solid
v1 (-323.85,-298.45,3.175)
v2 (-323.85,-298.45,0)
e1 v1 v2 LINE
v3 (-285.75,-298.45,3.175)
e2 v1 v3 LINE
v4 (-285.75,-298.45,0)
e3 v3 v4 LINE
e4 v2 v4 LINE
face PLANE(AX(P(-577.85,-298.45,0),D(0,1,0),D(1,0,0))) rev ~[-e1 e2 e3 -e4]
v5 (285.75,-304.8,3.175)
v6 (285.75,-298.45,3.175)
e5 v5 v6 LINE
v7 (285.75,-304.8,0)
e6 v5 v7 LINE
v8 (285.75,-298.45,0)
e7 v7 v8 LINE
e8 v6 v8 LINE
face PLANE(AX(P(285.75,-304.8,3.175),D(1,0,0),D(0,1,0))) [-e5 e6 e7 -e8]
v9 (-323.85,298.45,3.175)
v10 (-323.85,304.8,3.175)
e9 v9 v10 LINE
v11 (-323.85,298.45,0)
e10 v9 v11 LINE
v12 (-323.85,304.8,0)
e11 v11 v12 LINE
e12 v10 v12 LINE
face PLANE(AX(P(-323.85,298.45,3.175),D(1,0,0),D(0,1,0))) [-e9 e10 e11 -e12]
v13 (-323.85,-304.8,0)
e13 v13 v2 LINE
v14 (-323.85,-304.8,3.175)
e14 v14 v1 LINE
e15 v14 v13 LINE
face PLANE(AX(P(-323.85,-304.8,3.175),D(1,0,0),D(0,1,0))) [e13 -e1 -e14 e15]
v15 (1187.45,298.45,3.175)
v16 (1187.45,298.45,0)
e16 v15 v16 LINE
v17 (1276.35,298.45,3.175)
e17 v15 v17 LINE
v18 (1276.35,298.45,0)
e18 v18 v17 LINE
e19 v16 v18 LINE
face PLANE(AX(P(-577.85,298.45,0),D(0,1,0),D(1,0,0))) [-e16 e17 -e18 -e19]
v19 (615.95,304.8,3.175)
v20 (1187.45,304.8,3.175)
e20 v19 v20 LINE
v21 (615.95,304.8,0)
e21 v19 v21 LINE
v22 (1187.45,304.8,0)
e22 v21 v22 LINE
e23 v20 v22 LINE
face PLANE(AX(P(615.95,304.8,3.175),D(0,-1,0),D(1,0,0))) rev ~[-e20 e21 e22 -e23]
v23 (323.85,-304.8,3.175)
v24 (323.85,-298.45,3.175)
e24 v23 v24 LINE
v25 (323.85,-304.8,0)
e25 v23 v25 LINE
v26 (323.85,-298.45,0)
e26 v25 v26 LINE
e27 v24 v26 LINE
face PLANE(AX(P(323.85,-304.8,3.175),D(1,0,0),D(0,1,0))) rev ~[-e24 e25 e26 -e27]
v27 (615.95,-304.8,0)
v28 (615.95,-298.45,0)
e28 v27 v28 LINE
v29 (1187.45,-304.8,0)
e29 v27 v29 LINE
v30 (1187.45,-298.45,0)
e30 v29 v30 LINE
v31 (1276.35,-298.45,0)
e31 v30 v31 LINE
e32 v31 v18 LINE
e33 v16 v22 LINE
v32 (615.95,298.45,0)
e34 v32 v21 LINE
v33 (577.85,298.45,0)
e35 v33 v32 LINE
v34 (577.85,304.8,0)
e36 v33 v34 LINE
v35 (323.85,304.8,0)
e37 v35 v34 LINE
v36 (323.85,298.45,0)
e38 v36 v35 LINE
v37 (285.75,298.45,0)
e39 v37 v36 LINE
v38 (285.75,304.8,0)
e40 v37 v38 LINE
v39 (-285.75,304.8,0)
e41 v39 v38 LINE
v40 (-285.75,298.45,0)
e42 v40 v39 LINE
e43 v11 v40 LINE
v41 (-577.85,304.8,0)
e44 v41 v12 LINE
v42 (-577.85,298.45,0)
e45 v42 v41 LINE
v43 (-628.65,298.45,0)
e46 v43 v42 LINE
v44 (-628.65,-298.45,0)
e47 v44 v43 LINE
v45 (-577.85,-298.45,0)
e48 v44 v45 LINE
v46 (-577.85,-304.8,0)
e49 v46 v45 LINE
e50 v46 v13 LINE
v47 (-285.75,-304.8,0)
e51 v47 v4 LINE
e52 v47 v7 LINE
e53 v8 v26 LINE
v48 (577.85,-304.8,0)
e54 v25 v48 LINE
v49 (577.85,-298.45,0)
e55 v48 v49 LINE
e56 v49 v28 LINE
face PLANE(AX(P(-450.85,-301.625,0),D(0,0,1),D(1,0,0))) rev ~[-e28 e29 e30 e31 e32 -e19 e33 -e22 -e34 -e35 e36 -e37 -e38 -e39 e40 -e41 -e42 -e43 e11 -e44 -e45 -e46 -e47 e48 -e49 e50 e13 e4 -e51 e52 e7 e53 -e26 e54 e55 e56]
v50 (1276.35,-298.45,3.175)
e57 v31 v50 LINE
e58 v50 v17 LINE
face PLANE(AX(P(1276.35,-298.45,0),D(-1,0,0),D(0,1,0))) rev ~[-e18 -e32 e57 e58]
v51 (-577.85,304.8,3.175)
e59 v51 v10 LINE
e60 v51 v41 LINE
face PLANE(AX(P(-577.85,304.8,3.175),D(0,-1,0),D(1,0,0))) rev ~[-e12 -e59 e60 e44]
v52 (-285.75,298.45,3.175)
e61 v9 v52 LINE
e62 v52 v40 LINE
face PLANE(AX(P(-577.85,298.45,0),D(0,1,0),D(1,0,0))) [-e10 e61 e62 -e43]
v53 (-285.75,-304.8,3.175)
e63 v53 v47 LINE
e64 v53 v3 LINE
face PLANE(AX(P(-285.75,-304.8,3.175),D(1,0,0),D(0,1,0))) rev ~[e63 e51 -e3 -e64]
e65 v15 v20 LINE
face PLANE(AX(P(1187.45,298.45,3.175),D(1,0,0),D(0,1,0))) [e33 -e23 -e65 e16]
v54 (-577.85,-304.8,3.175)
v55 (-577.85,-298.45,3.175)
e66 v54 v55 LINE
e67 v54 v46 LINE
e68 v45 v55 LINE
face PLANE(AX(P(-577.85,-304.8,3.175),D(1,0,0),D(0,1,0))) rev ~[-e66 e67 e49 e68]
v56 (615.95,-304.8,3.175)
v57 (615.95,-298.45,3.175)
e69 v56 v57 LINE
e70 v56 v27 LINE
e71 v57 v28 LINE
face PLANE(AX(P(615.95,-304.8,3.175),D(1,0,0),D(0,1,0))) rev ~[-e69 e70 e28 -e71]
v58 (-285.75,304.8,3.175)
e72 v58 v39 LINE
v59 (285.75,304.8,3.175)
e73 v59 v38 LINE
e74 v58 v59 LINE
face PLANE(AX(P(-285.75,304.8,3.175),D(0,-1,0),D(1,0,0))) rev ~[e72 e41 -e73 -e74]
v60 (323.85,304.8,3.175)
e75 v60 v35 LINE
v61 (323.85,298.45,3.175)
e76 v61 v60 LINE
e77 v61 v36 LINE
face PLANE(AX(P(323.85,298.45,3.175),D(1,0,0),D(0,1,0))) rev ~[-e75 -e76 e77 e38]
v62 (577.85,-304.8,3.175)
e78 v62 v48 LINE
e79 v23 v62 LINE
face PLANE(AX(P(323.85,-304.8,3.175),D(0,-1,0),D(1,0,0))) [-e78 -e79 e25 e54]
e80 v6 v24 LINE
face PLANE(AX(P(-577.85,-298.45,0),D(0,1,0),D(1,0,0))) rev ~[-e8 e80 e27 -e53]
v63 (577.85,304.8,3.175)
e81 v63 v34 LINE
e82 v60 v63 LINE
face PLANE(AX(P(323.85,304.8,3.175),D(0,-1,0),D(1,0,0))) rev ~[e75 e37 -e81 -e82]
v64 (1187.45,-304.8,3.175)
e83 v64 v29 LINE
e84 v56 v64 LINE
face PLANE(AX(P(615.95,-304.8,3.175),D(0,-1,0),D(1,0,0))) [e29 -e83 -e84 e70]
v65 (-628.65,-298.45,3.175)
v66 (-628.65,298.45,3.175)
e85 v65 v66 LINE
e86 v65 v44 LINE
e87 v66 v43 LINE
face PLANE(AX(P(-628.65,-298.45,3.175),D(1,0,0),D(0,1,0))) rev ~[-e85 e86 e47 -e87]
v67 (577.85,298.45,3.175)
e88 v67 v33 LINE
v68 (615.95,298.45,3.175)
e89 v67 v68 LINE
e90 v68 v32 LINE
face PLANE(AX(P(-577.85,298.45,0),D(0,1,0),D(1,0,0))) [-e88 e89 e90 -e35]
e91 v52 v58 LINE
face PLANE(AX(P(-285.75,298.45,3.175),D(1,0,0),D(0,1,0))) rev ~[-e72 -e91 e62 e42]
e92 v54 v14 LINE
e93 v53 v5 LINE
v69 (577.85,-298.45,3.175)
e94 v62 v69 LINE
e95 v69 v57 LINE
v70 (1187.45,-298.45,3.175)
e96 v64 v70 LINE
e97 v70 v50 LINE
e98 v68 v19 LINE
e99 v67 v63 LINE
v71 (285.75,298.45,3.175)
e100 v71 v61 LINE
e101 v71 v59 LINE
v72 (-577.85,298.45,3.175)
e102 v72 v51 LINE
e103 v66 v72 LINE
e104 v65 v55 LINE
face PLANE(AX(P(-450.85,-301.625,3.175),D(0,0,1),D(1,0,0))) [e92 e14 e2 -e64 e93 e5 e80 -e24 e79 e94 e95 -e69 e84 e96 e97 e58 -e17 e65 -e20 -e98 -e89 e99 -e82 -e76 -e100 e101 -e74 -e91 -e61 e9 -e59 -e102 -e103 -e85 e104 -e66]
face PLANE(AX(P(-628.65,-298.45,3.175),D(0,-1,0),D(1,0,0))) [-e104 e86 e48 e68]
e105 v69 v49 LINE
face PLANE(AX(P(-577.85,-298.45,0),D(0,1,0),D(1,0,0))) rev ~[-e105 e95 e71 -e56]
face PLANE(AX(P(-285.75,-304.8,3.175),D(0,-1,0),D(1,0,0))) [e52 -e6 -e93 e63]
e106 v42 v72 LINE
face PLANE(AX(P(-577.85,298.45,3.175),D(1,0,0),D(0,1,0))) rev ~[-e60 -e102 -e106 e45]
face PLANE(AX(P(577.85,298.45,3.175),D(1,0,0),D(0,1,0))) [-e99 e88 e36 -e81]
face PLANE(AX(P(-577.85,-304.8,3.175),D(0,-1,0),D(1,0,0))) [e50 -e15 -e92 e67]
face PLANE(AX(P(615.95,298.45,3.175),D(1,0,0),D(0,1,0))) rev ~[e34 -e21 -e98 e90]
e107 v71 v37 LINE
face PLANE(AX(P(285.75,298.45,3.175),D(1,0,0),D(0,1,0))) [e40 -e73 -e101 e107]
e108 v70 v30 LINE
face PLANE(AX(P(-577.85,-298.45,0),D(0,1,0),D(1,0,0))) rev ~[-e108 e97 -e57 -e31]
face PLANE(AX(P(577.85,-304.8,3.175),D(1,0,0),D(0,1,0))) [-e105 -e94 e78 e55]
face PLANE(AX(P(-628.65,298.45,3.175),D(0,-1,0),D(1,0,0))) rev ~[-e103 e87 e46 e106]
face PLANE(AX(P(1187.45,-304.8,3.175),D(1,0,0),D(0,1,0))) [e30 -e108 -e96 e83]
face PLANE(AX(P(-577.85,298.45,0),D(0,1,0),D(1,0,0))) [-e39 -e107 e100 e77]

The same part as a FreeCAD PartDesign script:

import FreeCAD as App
import Part
import Sketcher
from FreeCAD import Vector
Q = App.Units.Quantity


def add_polygon(sketch, points):
    """Adds a closed chain of lines whose ends are joined by coincident constraints."""
    first, n = sketch.GeometryCount, len(points)
    for a, b in zip(points, points[1:] + points[:1]):
        sketch.addGeometry(Part.LineSegment(App.Vector(*a, 0), App.Vector(*b, 0)), False)
    for i in range(n):
        sketch.addConstraint(Sketcher.Constraint("Coincident", first + i, 2, first + (i + 1) % n, 1))

doc = App.newDocument("Part")
params = doc.addObject("Spreadsheet::Sheet", "Params")
for row, (alias, value) in enumerate([
    ("sketch1_width", "73 in"),
    ("sketch1_height", "23.5 in"),
    ("pad1_length", "0.125 in"),
    ("sketch2_width", "10 in"),
    ("sketch2_width2", "2 in"),
    ("sketch2_width3", "22.5 in"),
    ("sketch2_height", "23.5 in"),
    ("pad2_length", "0.125 in"),
], start=1):
    params.set(f"A{row}", alias)
    params.set(f"B{row}", "=" + value)
    params.setAlias(f"B{row}", alias)

body = doc.addObject("PartDesign::Body", "Body")

# Sketch on XY plane
sketch1 = body.newObject("Sketcher::SketchObject", "Sketch")
sketch1.AttachmentSupport = (doc.getObject("XY_Plane"), [""])
sketch1.MapMode = "FlatFace"
add_polygon(sketch1, [(-578, 298), (-578, -298), (1276, -298), (1276, 298)])  # lines 0-3
sketch1.addConstraint([
    Sketcher.Constraint("Vertical", 0),
    Sketcher.Constraint("Horizontal", 1),
    Sketcher.Constraint("Vertical", 2),
    Sketcher.Constraint("Horizontal", 3),
    Sketcher.Constraint("DistanceX", 1, 1, 1, 2, Q("73 in")),
    Sketcher.Constraint("DistanceY", 0, 2, 0, 1, Q("23.5 in")),
    Sketcher.Constraint("DistanceX", 0, 2, -1, 1, Q("22.75 in")),
    Sketcher.Constraint("DistanceY", 0, 2, -1, 1, Q("11.75 in")),
])
sketch1.setExpression("Constraints[8]", "Params.sketch1_width")
sketch1.setExpression("Constraints[9]", "Params.sketch1_height")
pad1 = body.newObject("PartDesign::Pad", "Pad")
pad1.Profile = sketch1
pad1.setExpression("Length", "Params.pad1_length")

# Sketch on XY plane
sketch2 = body.newObject("Sketcher::SketchObject", "Sketch001")
sketch2.AttachmentSupport = (doc.getObject("XY_Plane"), [""])
sketch2.MapMode = "FlatFace"
sketch2.AttachmentOffset = App.Placement(Vector(0, 0, 0.125 * 25.4), App.Rotation())
add_polygon(sketch2, [(616, 305), (616, 298), (1187, 298), (1187, 305)])  # lines 0-3
add_polygon(sketch2, [(324, 305), (324, 298), (578, 298), (578, 305)])  # lines 4-7
add_polygon(sketch2, [(-286, 305), (-286, 298), (286, 298), (286, 305)])  # lines 8-11
add_polygon(sketch2, [(-578, -298), (-578, -305), (-324, -305), (-324, -298)])  # lines 12-15
add_polygon(sketch2, [(-629, 298), (-629, -298), (-578, -298), (-578, 298)])  # lines 16-19
add_polygon(sketch2, [(-578, 305), (-578, 298), (-324, 298), (-324, 305)])  # lines 20-23
add_polygon(sketch2, [(-286, -298), (-286, -305), (286, -305), (286, -298)])  # lines 24-27
add_polygon(sketch2, [(324, -298), (324, -305), (578, -305), (578, -298)])  # lines 28-31
add_polygon(sketch2, [(616, -298), (616, -305), (1187, -305), (1187, -298)])  # lines 32-35
sketch2.addConstraint([
    Sketcher.Constraint("Vertical", 0),
    Sketcher.Constraint("Horizontal", 1),
    Sketcher.Constraint("Vertical", 2),
    Sketcher.Constraint("Horizontal", 3),
    Sketcher.Constraint("Vertical", 4),
    Sketcher.Constraint("Horizontal", 5),
    Sketcher.Constraint("Vertical", 6),
    Sketcher.Constraint("Horizontal", 7),
    Sketcher.Constraint("Vertical", 8),
    Sketcher.Constraint("Horizontal", 9),
    Sketcher.Constraint("Vertical", 10),
    Sketcher.Constraint("Horizontal", 11),
    Sketcher.Constraint("Vertical", 12),
    Sketcher.Constraint("Horizontal", 13),
    Sketcher.Constraint("Vertical", 14),
    Sketcher.Constraint("Horizontal", 15),
    Sketcher.Constraint("Vertical", 16),
    Sketcher.Constraint("Horizontal", 17),
    Sketcher.Constraint("Vertical", 18),
    Sketcher.Constraint("Horizontal", 19),
    Sketcher.Constraint("Vertical", 20),
    Sketcher.Constraint("Horizontal", 21),
    Sketcher.Constraint("Vertical", 22),
    Sketcher.Constraint("Horizontal", 23),
    Sketcher.Constraint("Vertical", 24),
    Sketcher.Constraint("Horizontal", 25),
    Sketcher.Constraint("Vertical", 26),
    Sketcher.Constraint("Horizontal", 27),
    Sketcher.Constraint("Vertical", 28),
    Sketcher.Constraint("Horizontal", 29),
    Sketcher.Constraint("Vertical", 30),
    Sketcher.Constraint("Horizontal", 31),
    Sketcher.Constraint("Vertical", 32),
    Sketcher.Constraint("Horizontal", 33),
    Sketcher.Constraint("Vertical", 34),
    Sketcher.Constraint("Horizontal", 35),
    Sketcher.Constraint("Coincident", 17, 2, 15, 2),
    Sketcher.Constraint("Coincident", 20, 2, 18, 2),
    Sketcher.Constraint("Symmetric", 6, 2, 12, 2, -1, 1),
    Sketcher.Constraint("Symmetric", 4, 2, 14, 2, -1, 1),
    Sketcher.Constraint("Symmetric", 10, 2, 24, 2, -1, 1),
    Sketcher.Constraint("Symmetric", 8, 2, 26, 2, -1, 1),
    Sketcher.Constraint("Symmetric", 22, 2, 28, 2, -1, 1),
    Sketcher.Constraint("Symmetric", 18, 2, 30, 2, -1, 1),
    Sketcher.Constraint("Symmetric", 4, 2, 21, 2, -2),
    Sketcher.Constraint("Symmetric", 3, 2, 32, 2, -1),
    Sketcher.Constraint("Symmetric", 1, 2, 34, 2, -1),
    Sketcher.Constraint("Horizontal", 1, 2, 4, 2),
    Sketcher.Constraint("Horizontal", 3, 2, 6, 2),
    Sketcher.Constraint("Horizontal", 5, 2, 8, 2),
    Sketcher.Constraint("Horizontal", 7, 2, 10, 2),
    Sketcher.Constraint("Horizontal", 11, 2, 22, 2),
    Sketcher.Constraint("Vertical", 11, 2, 24, 2),
    Sketcher.Constraint("Equal", 3, 9),
    Sketcher.Constraint("DistanceX", 5, 1, 5, 2, Q("10 in")),
    Sketcher.Constraint("DistanceX", 17, 1, 17, 2, Q("2 in")),
    Sketcher.Constraint("DistanceX", 1, 1, 1, 2, Q("22.5 in")),
    Sketcher.Constraint("DistanceY", 16, 2, 16, 1, Q("23.5 in")),
    Sketcher.Constraint("DistanceY", -1, 1, 2, 2, Q("12 in")),
    Sketcher.Constraint("DistanceX", 4, 2, 1, 2, Q("34 in")),
    Sketcher.Constraint("DistanceX", 8, 2, 4, 2, Q("24 in")),
])
sketch2.setExpression("Constraints[90]", "Params.sketch2_width")
sketch2.setExpression("Constraints[91]", "Params.sketch2_width2")
sketch2.setExpression("Constraints[92]", "Params.sketch2_width3")
sketch2.setExpression("Constraints[93]", "Params.sketch2_height")
pad2 = body.newObject("PartDesign::Pad", "Pad001")
pad2.Profile = sketch2
pad2.setExpression("Length", "Params.pad2_length")
pad2.Reversed = True

doc.recompute()
